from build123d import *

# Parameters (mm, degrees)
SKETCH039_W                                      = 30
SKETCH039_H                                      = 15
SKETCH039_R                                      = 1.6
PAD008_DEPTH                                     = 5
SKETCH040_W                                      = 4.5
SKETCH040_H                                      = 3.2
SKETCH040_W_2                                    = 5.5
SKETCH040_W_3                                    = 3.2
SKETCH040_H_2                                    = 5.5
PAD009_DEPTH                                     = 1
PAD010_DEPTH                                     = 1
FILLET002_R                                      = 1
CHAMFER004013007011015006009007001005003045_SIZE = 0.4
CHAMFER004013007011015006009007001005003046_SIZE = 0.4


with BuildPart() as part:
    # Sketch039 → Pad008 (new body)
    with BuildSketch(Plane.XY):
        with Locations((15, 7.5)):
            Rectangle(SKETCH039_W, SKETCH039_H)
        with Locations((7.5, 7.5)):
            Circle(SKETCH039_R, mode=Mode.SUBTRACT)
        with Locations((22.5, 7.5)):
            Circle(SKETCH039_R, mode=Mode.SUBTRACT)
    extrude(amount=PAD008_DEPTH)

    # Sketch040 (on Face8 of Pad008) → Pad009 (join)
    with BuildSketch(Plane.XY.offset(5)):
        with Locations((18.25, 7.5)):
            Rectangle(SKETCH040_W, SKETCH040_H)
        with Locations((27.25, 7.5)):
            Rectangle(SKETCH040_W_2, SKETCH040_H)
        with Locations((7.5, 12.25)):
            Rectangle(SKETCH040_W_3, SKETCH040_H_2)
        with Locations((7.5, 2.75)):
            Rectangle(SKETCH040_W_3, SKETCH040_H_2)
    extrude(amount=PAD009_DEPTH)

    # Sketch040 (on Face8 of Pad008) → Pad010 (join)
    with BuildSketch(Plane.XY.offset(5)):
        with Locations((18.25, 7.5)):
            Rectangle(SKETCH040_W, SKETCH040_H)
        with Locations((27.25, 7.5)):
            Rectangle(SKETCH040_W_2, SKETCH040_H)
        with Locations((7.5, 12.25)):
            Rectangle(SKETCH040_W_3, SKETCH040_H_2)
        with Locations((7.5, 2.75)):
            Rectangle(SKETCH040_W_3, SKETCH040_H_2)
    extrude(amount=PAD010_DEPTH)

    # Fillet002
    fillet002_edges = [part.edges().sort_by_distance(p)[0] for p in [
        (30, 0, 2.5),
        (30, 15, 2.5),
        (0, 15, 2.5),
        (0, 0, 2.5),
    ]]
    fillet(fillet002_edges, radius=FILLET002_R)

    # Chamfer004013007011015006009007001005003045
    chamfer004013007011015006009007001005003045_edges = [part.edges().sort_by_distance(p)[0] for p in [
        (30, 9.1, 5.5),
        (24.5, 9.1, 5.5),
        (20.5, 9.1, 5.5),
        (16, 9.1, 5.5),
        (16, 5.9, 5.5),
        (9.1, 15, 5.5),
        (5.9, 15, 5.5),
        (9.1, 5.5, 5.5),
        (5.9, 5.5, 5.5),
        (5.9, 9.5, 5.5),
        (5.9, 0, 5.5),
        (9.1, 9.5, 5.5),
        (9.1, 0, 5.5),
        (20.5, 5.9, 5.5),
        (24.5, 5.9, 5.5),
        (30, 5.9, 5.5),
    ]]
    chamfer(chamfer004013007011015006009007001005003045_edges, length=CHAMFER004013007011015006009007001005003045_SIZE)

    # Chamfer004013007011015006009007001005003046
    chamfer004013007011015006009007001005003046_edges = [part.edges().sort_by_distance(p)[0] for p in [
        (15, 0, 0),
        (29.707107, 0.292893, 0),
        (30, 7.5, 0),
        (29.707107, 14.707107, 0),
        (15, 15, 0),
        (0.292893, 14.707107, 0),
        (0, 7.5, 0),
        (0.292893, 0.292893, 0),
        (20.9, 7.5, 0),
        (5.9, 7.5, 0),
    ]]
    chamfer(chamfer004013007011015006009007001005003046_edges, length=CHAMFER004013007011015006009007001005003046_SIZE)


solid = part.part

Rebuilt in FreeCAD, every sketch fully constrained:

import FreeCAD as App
import Part
import Sketcher
from FreeCAD import Vector


def edges_at(feature, points):
    """Names of the edges that pass closest to the given points."""
    edges = feature.Shape.Edges
    near = lambda p: min(range(len(edges)), key=lambda i: edges[i].distToShape(Part.Vertex(*p))[0])
    return sorted({f"Edge{near(p) + 1}" for p in points})


def add_polygon(sketch, points):
    """Adds a closed chain of lines whose ends are joined by coincident constraints."""
    first, n = sketch.GeometryCount, len(points)
    for a, b in zip(points, points[1:] + points[:1]):
        sketch.addGeometry(Part.LineSegment(App.Vector(*a, 0), App.Vector(*b, 0)), False)
    for i in range(n):
        sketch.addConstraint(Sketcher.Constraint("Coincident", first + i, 2, first + (i + 1) % n, 1))

doc = App.newDocument("Part")
body = doc.addObject("PartDesign::Body", "Body")

sketch1 = body.newObject("Sketcher::SketchObject", "Sketch")
sketch1.AttachmentSupport = (doc.getObject("XY_Plane"), [""])
sketch1.MapMode = "FlatFace"
add_polygon(sketch1, [(0, 15), (0, 0), (30, 0), (30, 15)])
sketch1.addGeometry(Part.Circle(Vector(7.5, 7.5, 0), Vector(0, 0, 1), 1.6), False)
sketch1.addGeometry(Part.Circle(Vector(22.5, 7.5, 0), Vector(0, 0, 1), 1.6), False)
sketch1.addConstraint(Sketcher.Constraint("Vertical", 0))
sketch1.addConstraint(Sketcher.Constraint("Horizontal", 1))
sketch1.addConstraint(Sketcher.Constraint("Vertical", 2))
sketch1.addConstraint(Sketcher.Constraint("Horizontal", 3))
sketch1.addConstraint(Sketcher.Constraint("Coincident", 0, 2, -1, 1))
sketch1.addConstraint(Sketcher.Constraint("Equal", 4, 5))
sketch1.addConstraint(Sketcher.Constraint("Horizontal", 4, 3, 5, 3))
sketch1.addConstraint(Sketcher.Constraint("Diameter", 4, 3.2))
sketch1.addConstraint(Sketcher.Constraint("DistanceX", 1, 1, 1, 2, 30.0))
sketch1.addConstraint(Sketcher.Constraint("DistanceY", 0, 2, 0, 1, 15.0))
sketch1.addConstraint(Sketcher.Constraint("DistanceX", 4, 3, 5, 3, 15.0))
sketch1.addConstraint(Sketcher.Constraint("DistanceX", -1, 1, 4, 3, 7.5))
sketch1.addConstraint(Sketcher.Constraint("DistanceY", -1, 1, 4, 3, 7.5))
pad1 = body.newObject("PartDesign::Pad", "Pad")
pad1.Profile = sketch1
pad1.Length = 5

sketch2 = body.newObject("Sketcher::SketchObject", "Sketch001")
sketch2.AttachmentSupport = (doc.getObject("XY_Plane"), [""])
sketch2.MapMode = "FlatFace"
sketch2.AttachmentOffset = App.Placement(Vector(0, 0, 5), App.Rotation())
add_polygon(sketch2, [(16, 9.1), (16, 5.9), (20.5, 5.9), (20.5, 9.1)])
add_polygon(sketch2, [(24.5, 9.1), (24.5, 5.9), (30, 5.9), (30, 9.1)])
add_polygon(sketch2, [(5.9, 15), (5.9, 9.5), (9.1, 9.5), (9.1, 15)])
add_polygon(sketch2, [(5.9, 5.5), (5.9, 0), (9.1, 0), (9.1, 5.5)])
sketch2.addConstraint(Sketcher.Constraint("Vertical", 0))
sketch2.addConstraint(Sketcher.Constraint("Horizontal", 1))
sketch2.addConstraint(Sketcher.Constraint("Vertical", 2))
sketch2.addConstraint(Sketcher.Constraint("Horizontal", 3))
sketch2.addConstraint(Sketcher.Constraint("Vertical", 4))
sketch2.addConstraint(Sketcher.Constraint("Horizontal", 5))
sketch2.addConstraint(Sketcher.Constraint("Vertical", 6))
sketch2.addConstraint(Sketcher.Constraint("Horizontal", 7))
sketch2.addConstraint(Sketcher.Constraint("Vertical", 8))
sketch2.addConstraint(Sketcher.Constraint("Horizontal", 9))
sketch2.addConstraint(Sketcher.Constraint("Vertical", 10))
sketch2.addConstraint(Sketcher.Constraint("Horizontal", 11))
sketch2.addConstraint(Sketcher.Constraint("Vertical", 12))
sketch2.addConstraint(Sketcher.Constraint("Horizontal", 13))
sketch2.addConstraint(Sketcher.Constraint("Vertical", 14))
sketch2.addConstraint(Sketcher.Constraint("Horizontal", 15))
sketch2.addConstraint(Sketcher.Constraint("PointOnObject", 12, 2, -1))
sketch2.addConstraint(Sketcher.Constraint("Horizontal", 1, 2, 4, 2))
sketch2.addConstraint(Sketcher.Constraint("Horizontal", 3, 2, 6, 2))
sketch2.addConstraint(Sketcher.Constraint("Vertical", 11, 2, 12, 2))
sketch2.addConstraint(Sketcher.Constraint("Vertical", 10, 2, 13, 2))
sketch2.addConstraint(Sketcher.Constraint("Equal", 15, 0))
sketch2.addConstraint(Sketcher.Constraint("Equal", 7, 8))
sketch2.addConstraint(Sketcher.Constraint("Equal", 10, 12))
sketch2.addConstraint(Sketcher.Constraint("DistanceX", 1, 1, 1, 2, 4.5))
sketch2.addConstraint(Sketcher.Constraint("DistanceX", 5, 1, 5, 2, 5.5))
sketch2.addConstraint(Sketcher.Constraint("DistanceX", 9, 1, 9, 2, 3.2))
sketch2.addConstraint(Sketcher.Constraint("DistanceX", -1, 1, 0, 2, 16.0))
sketch2.addConstraint(Sketcher.Constraint("DistanceX", -1, 1, 5, 2, 30.0))
sketch2.addConstraint(Sketcher.Constraint("DistanceY", -1, 1, 10, 2, 15.0))
sketch2.addConstraint(Sketcher.Constraint("DistanceY", -1, 1, 0, 2, 5.9))
sketch2.addConstraint(Sketcher.Constraint("DistanceX", -1, 1, 8, 2, 5.9))
pad2 = body.newObject("PartDesign::Pad", "Pad001")
pad2.Profile = sketch2
pad2.Length = 1

sketch3 = body.newObject("Sketcher::SketchObject", "Sketch002")
sketch3.AttachmentSupport = (doc.getObject("XY_Plane"), [""])
sketch3.MapMode = "FlatFace"
sketch3.AttachmentOffset = App.Placement(Vector(0, 0, 5), App.Rotation())
add_polygon(sketch3, [(16, 9.1), (16, 5.9), (20.5, 5.9), (20.5, 9.1)])
add_polygon(sketch3, [(24.5, 9.1), (24.5, 5.9), (30, 5.9), (30, 9.1)])
add_polygon(sketch3, [(5.9, 15), (5.9, 9.5), (9.1, 9.5), (9.1, 15)])
add_polygon(sketch3, [(5.9, 5.5), (5.9, 0), (9.1, 0), (9.1, 5.5)])
sketch3.addConstraint(Sketcher.Constraint("Vertical", 0))
sketch3.addConstraint(Sketcher.Constraint("Horizontal", 1))
sketch3.addConstraint(Sketcher.Constraint("Vertical", 2))
sketch3.addConstraint(Sketcher.Constraint("Horizontal", 3))
sketch3.addConstraint(Sketcher.Constraint("Vertical", 4))
sketch3.addConstraint(Sketcher.Constraint("Horizontal", 5))
sketch3.addConstraint(Sketcher.Constraint("Vertical", 6))
sketch3.addConstraint(Sketcher.Constraint("Horizontal", 7))
sketch3.addConstraint(Sketcher.Constraint("Vertical", 8))
sketch3.addConstraint(Sketcher.Constraint("Horizontal", 9))
sketch3.addConstraint(Sketcher.Constraint("Vertical", 10))
sketch3.addConstraint(Sketcher.Constraint("Horizontal", 11))
sketch3.addConstraint(Sketcher.Constraint("Vertical", 12))
sketch3.addConstraint(Sketcher.Constraint("Horizontal", 13))
sketch3.addConstraint(Sketcher.Constraint("Vertical", 14))
sketch3.addConstraint(Sketcher.Constraint("Horizontal", 15))
sketch3.addConstraint(Sketcher.Constraint("PointOnObject", 12, 2, -1))
sketch3.addConstraint(Sketcher.Constraint("Horizontal", 1, 2, 4, 2))
sketch3.addConstraint(Sketcher.Constraint("Horizontal", 3, 2, 6, 2))
sketch3.addConstraint(Sketcher.Constraint("Vertical", 11, 2, 12, 2))
sketch3.addConstraint(Sketcher.Constraint("Vertical", 10, 2, 13, 2))
sketch3.addConstraint(Sketcher.Constraint("Equal", 15, 0))
sketch3.addConstraint(Sketcher.Constraint("Equal", 7, 8))
sketch3.addConstraint(Sketcher.Constraint("Equal", 10, 12))
sketch3.addConstraint(Sketcher.Constraint("DistanceX", 1, 1, 1, 2, 4.5))
sketch3.addConstraint(Sketcher.Constraint("DistanceX", 5, 1, 5, 2, 5.5))
sketch3.addConstraint(Sketcher.Constraint("DistanceX", 9, 1, 9, 2, 3.2))
sketch3.addConstraint(Sketcher.Constraint("DistanceX", -1, 1, 0, 2, 16.0))
sketch3.addConstraint(Sketcher.Constraint("DistanceX", -1, 1, 5, 2, 30.0))
sketch3.addConstraint(Sketcher.Constraint("DistanceY", -1, 1, 10, 2, 15.0))
sketch3.addConstraint(Sketcher.Constraint("DistanceY", -1, 1, 0, 2, 5.9))
sketch3.addConstraint(Sketcher.Constraint("DistanceX", -1, 1, 8, 2, 5.9))
pad3 = body.newObject("PartDesign::Pad", "Pad002")
pad3.Profile = sketch3
pad3.Length = 1
doc.recompute()

fillet = body.newObject("PartDesign::Fillet", "Fillet")
fillet.Base = (pad3, edges_at(pad3, [
    (30, 0, 2.5),
    (30, 15, 2.5),
    (0, 15, 2.5),
    (0, 0, 2.5),
]))
fillet.Radius = 1
doc.recompute()

chamfer = body.newObject("PartDesign::Chamfer", "Chamfer")
chamfer.Base = (fillet, edges_at(fillet, [
    (30, 9.1, 5.5),
    (24.5, 9.1, 5.5),
    (20.5, 9.1, 5.5),
    (16, 9.1, 5.5),
    (16, 5.9, 5.5),
    (9.1, 15, 5.5),
    (5.9, 15, 5.5),
    (9.1, 5.5, 5.5),
    (5.9, 5.5, 5.5),
    (5.9, 9.5, 5.5),
    (5.9, 0, 5.5),
    (9.1, 9.5, 5.5),
    (9.1, 0, 5.5),
    (20.5, 5.9, 5.5),
    (24.5, 5.9, 5.5),
    (30, 5.9, 5.5),
]))
chamfer.Size = 0.4
doc.recompute()

chamfer2 = body.newObject("PartDesign::Chamfer", "Chamfer001")
chamfer2.Base = (chamfer, edges_at(chamfer, [
    (15, 0, 0),
    (29.707, 0.293, 0),
    (30, 7.5, 0),
    (29.707, 14.707, 0),
    (15, 15, 0),
    (0.293, 14.707, 0),
    (0, 7.5, 0),
    (0.293, 0.293, 0),
    (20.9, 7.5, 0),
    (5.9, 7.5, 0),
]))
chamfer2.Size = 0.4

doc.recompute()
